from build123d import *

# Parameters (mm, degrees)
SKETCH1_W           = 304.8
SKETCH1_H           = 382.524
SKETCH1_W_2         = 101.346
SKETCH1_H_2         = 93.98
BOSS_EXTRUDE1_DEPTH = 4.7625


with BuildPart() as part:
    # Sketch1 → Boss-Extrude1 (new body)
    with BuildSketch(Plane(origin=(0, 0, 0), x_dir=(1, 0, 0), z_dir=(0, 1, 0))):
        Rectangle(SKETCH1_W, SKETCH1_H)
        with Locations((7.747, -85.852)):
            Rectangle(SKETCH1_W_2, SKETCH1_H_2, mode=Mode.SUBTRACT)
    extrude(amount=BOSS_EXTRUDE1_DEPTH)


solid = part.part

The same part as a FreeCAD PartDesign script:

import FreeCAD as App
import Part
import Sketcher
from FreeCAD import Vector
Q = App.Units.Quantity

doc = App.newDocument("Part")
body = doc.addObject("PartDesign::Body", "Body")

sketch1 = doc.addObject("Sketcher::SketchObject", "Sketch")
body.addObject(sketch1)
sketch1.AttachmentSupport = (doc.XZ_Plane, [""])
sketch1.MapMode = "FlatFace"
sketch1.addGeometry([
    Part.LineSegment(Vector(-152, -191, 0), Vector(-152, 191, 0)),
    Part.LineSegment(Vector(-152, 191, 0), Vector(152, 191, 0)),
    Part.LineSegment(Vector(152, 191, 0), Vector(152, -191, 0)),
    Part.LineSegment(Vector(152, -191, 0), Vector(-152, -191, 0)),
    Part.LineSegment(Vector(58, 133, 0), Vector(-43, 133, 0)),
    Part.LineSegment(Vector(-43, 133, 0), Vector(-43, 39, 0)),
    Part.LineSegment(Vector(-43, 39, 0), Vector(58, 39, 0)),
    Part.LineSegment(Vector(58, 39, 0), Vector(58, 133, 0)),
], False)
sketch1.addConstraint([
    Sketcher.Constraint("Coincident", 0, 2, 1, 1),
    Sketcher.Constraint("Coincident", 1, 2, 2, 1),
    Sketcher.Constraint("Coincident", 2, 2, 3, 1),
    Sketcher.Constraint("Coincident", 3, 2, 0, 1),
    Sketcher.Constraint("Coincident", 4, 2, 5, 1),
    Sketcher.Constraint("Coincident", 5, 2, 6, 1),
    Sketcher.Constraint("Coincident", 6, 2, 7, 1),
    Sketcher.Constraint("Coincident", 7, 2, 4, 1),
    Sketcher.Constraint("Vertical", 0),
    Sketcher.Constraint("Horizontal", 1),
    Sketcher.Constraint("Vertical", 2),
    Sketcher.Constraint("Horizontal", 3),
    Sketcher.Constraint("Horizontal", 4),
    Sketcher.Constraint("Vertical", 5),
    Sketcher.Constraint("Horizontal", 6),
    Sketcher.Constraint("Vertical", 7),
    Sketcher.Constraint("Symmetric", 0, 2, 2, 2, -1, 1),
    Sketcher.Constraint("DistanceX", 1, 1, 1, 2, Q("12 in")),
    Sketcher.Constraint("DistanceY", 5, 2, 5, 1, Q("3.7 in")),
    Sketcher.Constraint("DistanceY", 5, 2, 0, 2, Q("6 in")),
    Sketcher.Constraint("DistanceX", 4, 2, 4, 1, Q("3.99 in")),
    Sketcher.Constraint("DistanceY", 0, 1, 0, 2, Q("15.06 in")),
    Sketcher.Constraint("DistanceX", -1, 1, 6, 2, Q("2.3 in")),
])
pad1 = doc.addObject("PartDesign::Pad", "Pad")
body.addObject(pad1)
pad1.Profile = sketch1
pad1.Length = Q("0.1875 in")
pad1.Reversed = True

doc.recompute()
